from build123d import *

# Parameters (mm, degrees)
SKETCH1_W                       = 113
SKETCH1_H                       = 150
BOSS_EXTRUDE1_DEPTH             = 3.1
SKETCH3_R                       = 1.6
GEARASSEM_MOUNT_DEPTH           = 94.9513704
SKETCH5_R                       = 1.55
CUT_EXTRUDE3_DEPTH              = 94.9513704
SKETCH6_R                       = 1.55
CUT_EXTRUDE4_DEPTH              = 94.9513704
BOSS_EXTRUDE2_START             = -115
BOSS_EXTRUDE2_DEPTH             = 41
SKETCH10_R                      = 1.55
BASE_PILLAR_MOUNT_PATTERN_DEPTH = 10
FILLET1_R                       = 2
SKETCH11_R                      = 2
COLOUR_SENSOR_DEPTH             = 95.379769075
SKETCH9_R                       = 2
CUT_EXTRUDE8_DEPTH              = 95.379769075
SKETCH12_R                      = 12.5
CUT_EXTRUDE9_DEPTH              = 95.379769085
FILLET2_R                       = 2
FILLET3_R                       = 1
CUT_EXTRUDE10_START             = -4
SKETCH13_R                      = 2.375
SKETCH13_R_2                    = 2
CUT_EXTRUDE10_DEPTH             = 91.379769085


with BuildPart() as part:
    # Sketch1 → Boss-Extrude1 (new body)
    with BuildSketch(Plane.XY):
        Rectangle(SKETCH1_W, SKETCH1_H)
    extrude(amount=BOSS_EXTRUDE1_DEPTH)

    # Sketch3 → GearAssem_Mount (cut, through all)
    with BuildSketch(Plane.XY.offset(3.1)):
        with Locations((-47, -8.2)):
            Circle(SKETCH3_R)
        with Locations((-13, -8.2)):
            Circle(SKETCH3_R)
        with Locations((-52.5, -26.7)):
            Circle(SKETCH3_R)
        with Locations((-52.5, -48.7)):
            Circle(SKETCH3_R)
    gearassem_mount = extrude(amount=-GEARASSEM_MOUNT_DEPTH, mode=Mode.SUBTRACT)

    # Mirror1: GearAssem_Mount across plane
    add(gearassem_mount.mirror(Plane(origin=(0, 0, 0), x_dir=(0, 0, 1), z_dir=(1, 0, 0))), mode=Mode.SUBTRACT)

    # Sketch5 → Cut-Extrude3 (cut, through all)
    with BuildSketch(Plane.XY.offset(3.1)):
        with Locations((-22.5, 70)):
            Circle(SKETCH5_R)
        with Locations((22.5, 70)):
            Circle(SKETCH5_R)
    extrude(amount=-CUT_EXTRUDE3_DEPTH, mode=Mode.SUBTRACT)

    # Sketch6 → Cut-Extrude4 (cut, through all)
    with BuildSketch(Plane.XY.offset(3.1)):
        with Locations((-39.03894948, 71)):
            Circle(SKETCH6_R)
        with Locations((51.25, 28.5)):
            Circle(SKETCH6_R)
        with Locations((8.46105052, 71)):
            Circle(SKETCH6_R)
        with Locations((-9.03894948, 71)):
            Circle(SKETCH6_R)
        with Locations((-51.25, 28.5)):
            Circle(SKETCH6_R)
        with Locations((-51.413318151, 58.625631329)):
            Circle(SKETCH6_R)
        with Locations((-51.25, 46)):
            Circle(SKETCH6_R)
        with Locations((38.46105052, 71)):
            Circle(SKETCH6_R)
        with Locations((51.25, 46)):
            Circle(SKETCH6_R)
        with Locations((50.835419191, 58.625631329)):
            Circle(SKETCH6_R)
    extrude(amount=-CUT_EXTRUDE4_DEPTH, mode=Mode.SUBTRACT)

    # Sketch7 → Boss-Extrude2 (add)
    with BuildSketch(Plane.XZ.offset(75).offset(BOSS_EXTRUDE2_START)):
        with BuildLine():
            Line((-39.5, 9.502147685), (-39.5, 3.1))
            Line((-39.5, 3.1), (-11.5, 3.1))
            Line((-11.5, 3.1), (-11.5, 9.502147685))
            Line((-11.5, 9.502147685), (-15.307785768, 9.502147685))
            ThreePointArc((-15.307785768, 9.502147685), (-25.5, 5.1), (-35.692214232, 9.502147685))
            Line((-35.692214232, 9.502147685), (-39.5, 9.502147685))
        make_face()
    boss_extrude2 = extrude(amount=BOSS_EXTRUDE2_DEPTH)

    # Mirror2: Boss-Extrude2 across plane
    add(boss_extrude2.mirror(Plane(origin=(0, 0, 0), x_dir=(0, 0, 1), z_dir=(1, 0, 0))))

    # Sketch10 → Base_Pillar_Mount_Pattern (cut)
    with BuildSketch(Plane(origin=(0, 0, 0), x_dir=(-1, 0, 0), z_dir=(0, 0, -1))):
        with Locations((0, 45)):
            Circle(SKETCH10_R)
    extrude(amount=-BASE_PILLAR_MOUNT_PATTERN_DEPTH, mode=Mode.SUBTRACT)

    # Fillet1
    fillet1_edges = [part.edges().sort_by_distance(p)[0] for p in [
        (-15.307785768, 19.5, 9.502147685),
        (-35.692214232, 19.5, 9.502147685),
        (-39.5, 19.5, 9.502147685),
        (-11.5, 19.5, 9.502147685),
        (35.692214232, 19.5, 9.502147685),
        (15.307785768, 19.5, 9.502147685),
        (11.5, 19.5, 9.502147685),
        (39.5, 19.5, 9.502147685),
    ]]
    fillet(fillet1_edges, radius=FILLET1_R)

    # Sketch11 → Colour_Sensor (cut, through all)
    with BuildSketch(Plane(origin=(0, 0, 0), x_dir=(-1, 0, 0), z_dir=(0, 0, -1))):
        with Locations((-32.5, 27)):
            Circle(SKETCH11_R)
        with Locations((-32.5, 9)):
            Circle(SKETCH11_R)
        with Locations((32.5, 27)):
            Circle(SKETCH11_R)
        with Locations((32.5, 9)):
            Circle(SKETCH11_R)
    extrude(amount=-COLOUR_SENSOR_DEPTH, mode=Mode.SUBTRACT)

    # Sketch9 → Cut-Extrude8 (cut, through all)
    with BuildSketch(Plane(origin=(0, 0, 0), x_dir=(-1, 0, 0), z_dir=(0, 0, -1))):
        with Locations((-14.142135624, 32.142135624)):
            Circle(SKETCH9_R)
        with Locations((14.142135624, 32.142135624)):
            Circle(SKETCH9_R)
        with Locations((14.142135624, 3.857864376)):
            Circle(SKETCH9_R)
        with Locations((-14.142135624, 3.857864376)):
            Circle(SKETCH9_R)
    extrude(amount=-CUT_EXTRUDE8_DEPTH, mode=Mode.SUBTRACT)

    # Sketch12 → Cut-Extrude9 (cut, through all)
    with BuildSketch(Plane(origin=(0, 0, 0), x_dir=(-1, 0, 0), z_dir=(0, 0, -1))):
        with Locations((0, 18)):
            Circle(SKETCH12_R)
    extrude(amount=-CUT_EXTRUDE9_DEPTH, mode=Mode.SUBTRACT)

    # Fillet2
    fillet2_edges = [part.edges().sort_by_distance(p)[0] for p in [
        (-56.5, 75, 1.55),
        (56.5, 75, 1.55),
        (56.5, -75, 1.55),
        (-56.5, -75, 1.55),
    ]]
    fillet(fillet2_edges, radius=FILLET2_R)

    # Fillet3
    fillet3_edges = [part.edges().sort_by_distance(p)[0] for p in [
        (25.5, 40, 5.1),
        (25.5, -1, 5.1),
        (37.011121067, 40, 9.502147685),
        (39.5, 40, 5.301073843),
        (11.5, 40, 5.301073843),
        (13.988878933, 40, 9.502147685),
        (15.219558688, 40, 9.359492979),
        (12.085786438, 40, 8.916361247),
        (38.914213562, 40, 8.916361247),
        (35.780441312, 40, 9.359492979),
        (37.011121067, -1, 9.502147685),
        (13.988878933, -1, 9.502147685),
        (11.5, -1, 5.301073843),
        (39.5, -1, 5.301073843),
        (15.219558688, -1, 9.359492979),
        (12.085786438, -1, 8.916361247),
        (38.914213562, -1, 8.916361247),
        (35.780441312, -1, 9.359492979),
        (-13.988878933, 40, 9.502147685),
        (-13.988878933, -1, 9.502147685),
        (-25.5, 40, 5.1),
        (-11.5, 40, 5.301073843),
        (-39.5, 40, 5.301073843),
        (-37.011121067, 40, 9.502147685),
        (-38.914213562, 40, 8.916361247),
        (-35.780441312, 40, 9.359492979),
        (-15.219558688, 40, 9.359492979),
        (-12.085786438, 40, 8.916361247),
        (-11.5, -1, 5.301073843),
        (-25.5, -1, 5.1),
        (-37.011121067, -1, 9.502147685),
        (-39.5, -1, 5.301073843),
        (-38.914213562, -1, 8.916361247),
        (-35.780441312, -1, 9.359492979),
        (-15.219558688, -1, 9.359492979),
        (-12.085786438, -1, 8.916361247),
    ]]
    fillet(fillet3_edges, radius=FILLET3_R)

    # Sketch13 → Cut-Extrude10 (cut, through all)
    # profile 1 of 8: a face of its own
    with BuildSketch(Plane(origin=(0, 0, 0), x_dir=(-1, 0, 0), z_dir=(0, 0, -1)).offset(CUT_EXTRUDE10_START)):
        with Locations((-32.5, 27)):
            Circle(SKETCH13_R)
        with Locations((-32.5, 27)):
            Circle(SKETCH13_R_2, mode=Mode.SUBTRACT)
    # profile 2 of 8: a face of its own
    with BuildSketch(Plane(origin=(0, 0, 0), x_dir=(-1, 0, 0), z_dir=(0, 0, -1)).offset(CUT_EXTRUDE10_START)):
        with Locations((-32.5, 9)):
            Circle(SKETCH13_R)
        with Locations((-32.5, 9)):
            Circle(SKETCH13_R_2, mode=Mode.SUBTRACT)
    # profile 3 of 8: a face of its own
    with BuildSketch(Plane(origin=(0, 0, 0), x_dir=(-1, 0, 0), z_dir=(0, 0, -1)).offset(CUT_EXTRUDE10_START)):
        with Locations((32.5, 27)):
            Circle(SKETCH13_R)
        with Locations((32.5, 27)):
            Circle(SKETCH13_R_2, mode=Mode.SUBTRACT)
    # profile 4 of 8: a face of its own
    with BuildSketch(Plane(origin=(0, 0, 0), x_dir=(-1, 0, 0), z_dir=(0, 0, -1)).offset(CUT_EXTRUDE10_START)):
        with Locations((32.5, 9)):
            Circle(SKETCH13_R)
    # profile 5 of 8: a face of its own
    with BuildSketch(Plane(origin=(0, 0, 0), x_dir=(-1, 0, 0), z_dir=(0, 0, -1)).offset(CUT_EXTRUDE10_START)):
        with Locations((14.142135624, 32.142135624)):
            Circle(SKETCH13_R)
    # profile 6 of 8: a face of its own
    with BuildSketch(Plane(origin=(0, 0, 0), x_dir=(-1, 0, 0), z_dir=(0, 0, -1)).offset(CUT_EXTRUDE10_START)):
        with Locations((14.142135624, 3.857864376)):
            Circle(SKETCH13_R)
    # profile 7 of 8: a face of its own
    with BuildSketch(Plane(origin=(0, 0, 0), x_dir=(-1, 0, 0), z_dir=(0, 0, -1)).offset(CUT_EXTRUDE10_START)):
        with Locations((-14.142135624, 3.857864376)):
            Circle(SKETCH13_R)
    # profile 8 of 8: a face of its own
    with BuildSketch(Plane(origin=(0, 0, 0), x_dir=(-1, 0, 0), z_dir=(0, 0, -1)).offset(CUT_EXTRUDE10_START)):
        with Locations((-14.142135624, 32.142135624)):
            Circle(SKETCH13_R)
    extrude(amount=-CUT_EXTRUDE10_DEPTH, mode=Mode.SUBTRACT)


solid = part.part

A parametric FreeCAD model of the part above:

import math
import FreeCAD as App
import Part
import Sketcher
from FreeCAD import Vector


def edges_at(feature, points):
    """Names of the edges that pass closest to the given points."""
    edges = feature.Shape.Edges
    near = lambda p: min(range(len(edges)), key=lambda i: edges[i].distToShape(Part.Vertex(*p))[0])
    return sorted({f"Edge{near(p) + 1}" for p in points})

doc = App.newDocument("Part")
body = doc.addObject("PartDesign::Body", "Body")

# Sketch on XY plane
sketch1 = doc.addObject("Sketcher::SketchObject", "Sketch")
body.addObject(sketch1)
sketch1.AttachmentSupport = (doc.XY_Plane, [""])
sketch1.MapMode = "FlatFace"
sketch1.addGeometry([
    Part.LineSegment(Vector(-56.5, 75, 0), Vector(-56.5, -75, 0)),
    Part.LineSegment(Vector(-56.5, -75, 0), Vector(56.5, -75, 0)),
    Part.LineSegment(Vector(56.5, -75, 0), Vector(56.5, 75, 0)),
    Part.LineSegment(Vector(56.5, 75, 0), Vector(-56.5, 75, 0)),
], False)
sketch1.addConstraint([
    Sketcher.Constraint("Coincident", 0, 2, 1, 1),
    Sketcher.Constraint("Coincident", 1, 2, 2, 1),
    Sketcher.Constraint("Coincident", 2, 2, 3, 1),
    Sketcher.Constraint("Coincident", 3, 2, 0, 1),
    Sketcher.Constraint("Vertical", 0),
    Sketcher.Constraint("Horizontal", 1),
    Sketcher.Constraint("Vertical", 2),
    Sketcher.Constraint("Horizontal", 3),
    Sketcher.Constraint("Symmetric", 0, 2, 2, 2, -1, 1),
    Sketcher.Constraint("DistanceX", 1, 1, 1, 2, 113.0),
    Sketcher.Constraint("DistanceY", 0, 2, 0, 1, 150.0),
])
pad1 = doc.addObject("PartDesign::Pad", "Pad")
body.addObject(pad1)
pad1.Profile = sketch1
pad1.Length = 3.1

# Sketch on XY plane
sketch2 = doc.addObject("Sketcher::SketchObject", "Sketch001")
body.addObject(sketch2)
sketch2.AttachmentSupport = (doc.XY_Plane, [""])
sketch2.MapMode = "FlatFace"
sketch2.AttachmentOffset = App.Placement(Vector(0, 0, 3.1), App.Rotation())
sketch2.addGeometry([
    Part.Circle(Vector(-47, -8.2, 0), Vector(0, 0, 1), 1.6),
    Part.Circle(Vector(-13, -8.2, 0), Vector(0, 0, 1), 1.6),
    Part.Circle(Vector(-52.5, -26.7, 0), Vector(0, 0, 1), 1.6),
    Part.Circle(Vector(-52.5, -48.7, 0), Vector(0, 0, 1), 1.6),
], False)
sketch2.addConstraint([
    Sketcher.Constraint("Equal", 0, 1),
    Sketcher.Constraint("Equal", 1, 2),
    Sketcher.Constraint("Equal", 2, 3),
    Sketcher.Constraint("Horizontal", 0, 3, 1, 3),
    Sketcher.Constraint("Vertical", 2, 3, 3, 3),
    Sketcher.Constraint("Diameter", 0, 3.2),
    Sketcher.Constraint("DistanceX", 0, 3, -1, 1, 47.0),
    Sketcher.Constraint("DistanceX", 1, 3, -1, 1, 13.0),
    Sketcher.Constraint("DistanceY", 3, 3, 2, 3, 22.0),
    Sketcher.Constraint("DistanceY", 0, 3, -1, 1, 8.2),
    Sketcher.Constraint("DistanceX", 2, 3, -1, 1, 52.5),
    Sketcher.Constraint("DistanceY", 2, 3, -1, 1, 26.7),
])
pocket1 = doc.addObject("PartDesign::Pocket", "Pocket")
body.addObject(pocket1)
pocket1.Profile = sketch2
pocket1.Type = "ThroughAll"
doc.recompute()

mirrored = doc.addObject("PartDesign::Mirrored", "Mirrored")
body.addObject(mirrored)
mirrored.Originals = [pocket1]
mirrored.MirrorPlane = (doc.YZ_Plane, [""])
body.Tip = mirrored

# Sketch on XY plane
sketch3 = doc.addObject("Sketcher::SketchObject", "Sketch002")
body.addObject(sketch3)
sketch3.AttachmentSupport = (doc.XY_Plane, [""])
sketch3.MapMode = "FlatFace"
sketch3.AttachmentOffset = App.Placement(Vector(0, 0, 3.1), App.Rotation())
sketch3.addGeometry([
    Part.Circle(Vector(-22.5, 70, 0), Vector(0, 0, 1), 1.55),
    Part.Circle(Vector(22.5, 70, 0), Vector(0, 0, 1), 1.55),
], False)
sketch3.addConstraint([
    Sketcher.Constraint("Equal", 0, 1),
    Sketcher.Constraint("Symmetric", 0, 3, 1, 3, -2),
    Sketcher.Constraint("Diameter", 0, 3.1),
    Sketcher.Constraint("DistanceY", -1, 1, 0, 3, 70.0),
    Sketcher.Constraint("DistanceX", 0, 3, 1, 3, 45.0),
])
pocket2 = doc.addObject("PartDesign::Pocket", "Pocket001")
body.addObject(pocket2)
pocket2.Profile = sketch3
pocket2.Type = "ThroughAll"

# Sketch on XY plane
sketch4 = doc.addObject("Sketcher::SketchObject", "Sketch003")
body.addObject(sketch4)
sketch4.AttachmentSupport = (doc.XY_Plane, [""])
sketch4.MapMode = "FlatFace"
sketch4.AttachmentOffset = App.Placement(Vector(0, 0, 3.1), App.Rotation())
sketch4.addGeometry([
    Part.Circle(Vector(-39.038949, 71, 0), Vector(0, 0, 1), 1.55),  # 0
    Part.Circle(Vector(51.25, 28.5, 0), Vector(0, 0, 1), 1.55),  # 1
    Part.Circle(Vector(8.461051, 71, 0), Vector(0, 0, 1), 1.55),  # 2
    Part.Circle(Vector(-9.038949, 71, 0), Vector(0, 0, 1), 1.55),  # 3
    Part.Circle(Vector(-51.25, 28.5, 0), Vector(0, 0, 1), 1.55),  # 4
    Part.Circle(Vector(-51.413318, 58.625631, 0), Vector(0, 0, 1), 1.55),  # 5
    Part.Circle(Vector(-51.25, 46, 0), Vector(0, 0, 1), 1.55),  # 6
    Part.Circle(Vector(38.461051, 71, 0), Vector(0, 0, 1), 1.55),  # 7
    Part.Circle(Vector(51.25, 46, 0), Vector(0, 0, 1), 1.55),  # 8
    Part.Circle(Vector(50.835419, 58.625631, 0), Vector(0, 0, 1), 1.55),  # 9
], False)
sketch4.addConstraint([
    Sketcher.Constraint("Equal", 0, 1),
    Sketcher.Constraint("Equal", 1, 2),
    Sketcher.Constraint("Equal", 2, 3),
    Sketcher.Constraint("Equal", 3, 4),
    Sketcher.Constraint("Equal", 4, 5),
    Sketcher.Constraint("Equal", 5, 6),
    Sketcher.Constraint("Equal", 6, 7),
    Sketcher.Constraint("Equal", 7, 8),
    Sketcher.Constraint("Equal", 8, 9),
    Sketcher.Constraint("Symmetric", 1, 3, 4, 3, -2),
    Sketcher.Constraint("Symmetric", 6, 3, 8, 3, -2),
    Sketcher.Constraint("Horizontal", 0, 3, 2, 3),
    Sketcher.Constraint("Horizontal", 2, 3, 3, 3),
    Sketcher.Constraint("Horizontal", 3, 3, 7, 3),
    Sketcher.Constraint("Horizontal", 5, 3, 9, 3),
    Sketcher.Constraint("Vertical", 4, 3, 6, 3),
    Sketcher.Constraint("Diameter", 0, 3.1),
    Sketcher.Constraint("DistanceY", -1, 1, 0, 3, 71.0),
    Sketcher.Constraint("DistanceY", -1, 1, 6, 3, 46.0),
    Sketcher.Constraint("DistanceX", 0, 3, 3, 3, 30.0),
    Sketcher.Constraint("DistanceX", 2, 3, 7, 3, 30.0),
    Sketcher.Constraint("DistanceY", -1, 1, 1, 3, 28.5),
    Sketcher.Constraint("DistanceX", 0, 3, 2, 3, 47.5),
    Sketcher.Constraint("DistanceX", 4, 3, 1, 3, 102.5),
    Sketcher.Constraint("DistanceX", 0, 3, -1, 1, 39.038949),
    Sketcher.Constraint("DistanceX", 5, 3, -1, 1, 51.413318),
    Sketcher.Constraint("DistanceY", -1, 1, 5, 3, 58.625631),
    Sketcher.Constraint("DistanceX", -1, 1, 9, 3, 50.835419),
])
pocket3 = doc.addObject("PartDesign::Pocket", "Pocket002")
body.addObject(pocket3)
pocket3.Profile = sketch4
pocket3.Type = "ThroughAll"

# Sketch on XZ plane
sketch5 = doc.addObject("Sketcher::SketchObject", "Sketch004")
body.addObject(sketch5)
sketch5.AttachmentSupport = (doc.XZ_Plane, [""])
sketch5.MapMode = "FlatFace"
sketch5.AttachmentOffset = App.Placement(Vector(0, 0, -40), App.Rotation())
sketch5.addGeometry([
    Part.LineSegment(Vector(-39.5, 9.502148, 0), Vector(-39.5, 3.1, 0)),  # 0
    Part.LineSegment(Vector(-39.5, 3.1, 0), Vector(-11.5, 3.1, 0)),  # 1
    Part.LineSegment(Vector(-11.5, 3.1, 0), Vector(-11.5, 9.502148, 0)),  # 2
    Part.LineSegment(Vector(-11.5, 9.502148, 0), Vector(-15.307786, 9.502148, 0)),  # 3
    Part.ArcOfCircle(Part.Circle(Vector(-25.5, 19.1, 0), Vector(0, 0, 1), 14), math.radians(-136.720267), math.radians(-43.279733)),  # 4
    Part.LineSegment(Vector(-35.692214, 9.502148, 0), Vector(-39.5, 9.502148, 0)),  # 5
], False)
sketch5.addConstraint([
    Sketcher.Constraint("Coincident", 0, 2, 1, 1),
    Sketcher.Constraint("Coincident", 1, 2, 2, 1),
    Sketcher.Constraint("Coincident", 2, 2, 3, 1),
    Sketcher.Constraint("Coincident", 3, 2, 4, 2),
    Sketcher.Constraint("Coincident", 4, 1, 5, 1),
    Sketcher.Constraint("Coincident", 5, 2, 0, 1),
    Sketcher.Constraint("Vertical", 0),
    Sketcher.Constraint("Horizontal", 1),
    Sketcher.Constraint("Vertical", 2),
    Sketcher.Constraint("Horizontal", 3),
    Sketcher.Constraint("Horizontal", 5),
    Sketcher.Constraint("Horizontal", 3, 2, 4, 1),
    Sketcher.Constraint("Equal", 3, 5),
    Sketcher.Constraint("Radius", 4, 14.0),
    Sketcher.Constraint("DistanceX", 1, 1, 1, 2, 28.0),
    Sketcher.Constraint("DistanceY", 0, 2, 4, 3, 16.0),
    Sketcher.Constraint("DistanceX", 4, 3, -1, 1, 25.5),
    Sketcher.Constraint("DistanceY", -1, 1, 4, 3, 19.1),
    Sketcher.Constraint("DistanceX", 3, 2, 3, 1, 3.807786),
])
pad2 = doc.addObject("PartDesign::Pad", "Pad001")
body.addObject(pad2)
pad2.Profile = sketch5
pad2.Length = 41
doc.recompute()

mirrored2 = doc.addObject("PartDesign::Mirrored", "Mirrored001")
body.addObject(mirrored2)
mirrored2.Originals = [pad2]
mirrored2.MirrorPlane = (doc.YZ_Plane, [""])
body.Tip = mirrored2

# Sketch on XY plane
sketch6 = doc.addObject("Sketcher::SketchObject", "Sketch005")
body.addObject(sketch6)
sketch6.AttachmentSupport = (doc.XY_Plane, [""])
sketch6.MapMode = "FlatFace"
sketch6.addGeometry(Part.Circle(Vector(0, 45, 0), Vector(0, 0, 1), 1.55), False)
sketch6.addConstraint([
    Sketcher.Constraint("PointOnObject", 0, 3, -2),
    Sketcher.Constraint("Diameter", 0, 3.1),
    Sketcher.Constraint("DistanceY", -1, 1, 0, 3, 45.0),
])
pocket4 = doc.addObject("PartDesign::Pocket", "Pocket003")
body.addObject(pocket4)
pocket4.Profile = sketch6
pocket4.Length = 10
pocket4.Reversed = True
doc.recompute()

fillet = doc.addObject("PartDesign::Fillet", "Fillet")
body.addObject(fillet)
fillet.Base = (pocket4, edges_at(pocket4, [
    (-15.308, 19.5, 9.502),
    (-35.692, 19.5, 9.502),
    (-39.5, 19.5, 9.502),
    (-11.5, 19.5, 9.502),
    (35.692, 19.5, 9.502),
    (15.308, 19.5, 9.502),
    (11.5, 19.5, 9.502),
    (39.5, 19.5, 9.502),
]))
fillet.Radius = 2

# Sketch on XY plane
sketch7 = doc.addObject("Sketcher::SketchObject", "Sketch006")
body.addObject(sketch7)
sketch7.AttachmentSupport = (doc.XY_Plane, [""])
sketch7.MapMode = "FlatFace"
sketch7.addGeometry([
    Part.Circle(Vector(32.5, 27, 0), Vector(0, 0, 1), 2),
    Part.Circle(Vector(32.5, 9, 0), Vector(0, 0, 1), 2),
    Part.Circle(Vector(-32.5, 27, 0), Vector(0, 0, 1), 2),
    Part.Circle(Vector(-32.5, 9, 0), Vector(0, 0, 1), 2),
], False)
sketch7.addConstraint([
    Sketcher.Constraint("Equal", 0, 1),
    Sketcher.Constraint("Equal", 1, 2),
    Sketcher.Constraint("Equal", 2, 3),
    Sketcher.Constraint("Symmetric", 0, 3, 2, 3, -2),
    Sketcher.Constraint("Symmetric", 1, 3, 3, 3, -2),
    Sketcher.Constraint("Vertical", 0, 3, 1, 3),
    Sketcher.Constraint("Diameter", 0, 4.0),
    Sketcher.Constraint("DistanceY", -1, 1, 0, 3, 27.0),
    Sketcher.Constraint("DistanceY", -1, 1, 1, 3, 9.0),
    Sketcher.Constraint("DistanceX", 2, 3, 0, 3, 65.0),
])
pocket5 = doc.addObject("PartDesign::Pocket", "Pocket004")
body.addObject(pocket5)
pocket5.Profile = sketch7
pocket5.Type = "ThroughAll"
pocket5.Reversed = True

# Sketch on XY plane
sketch8 = doc.addObject("Sketcher::SketchObject", "Sketch007")
body.addObject(sketch8)
sketch8.AttachmentSupport = (doc.XY_Plane, [""])
sketch8.MapMode = "FlatFace"
sketch8.addGeometry([
    Part.Circle(Vector(14.142136, 32.142136, 0), Vector(0, 0, 1), 2),
    Part.Circle(Vector(-14.142136, 32.142136, 0), Vector(0, 0, 1), 2),
    Part.Circle(Vector(-14.142136, 3.857864, 0), Vector(0, 0, 1), 2),
    Part.Circle(Vector(14.142136, 3.857864, 0), Vector(0, 0, 1), 2),
], False)
sketch8.addConstraint([
    Sketcher.Constraint("Equal", 0, 1),
    Sketcher.Constraint("Equal", 1, 2),
    Sketcher.Constraint("Equal", 2, 3),
    Sketcher.Constraint("Symmetric", 0, 3, 1, 3, -2),
    Sketcher.Constraint("Symmetric", 2, 3, 3, 3, -2),
    Sketcher.Constraint("Vertical", 1, 3, 2, 3),
    Sketcher.Constraint("Diameter", 0, 4.0),
    Sketcher.Constraint("DistanceX", 1, 3, 0, 3, 28.284271),
    Sketcher.Constraint("DistanceY", 2, 3, 1, 3, 28.284271),
    Sketcher.Constraint("DistanceY", -1, 1, 0, 3, 32.142136),
])
pocket6 = doc.addObject("PartDesign::Pocket", "Pocket005")
body.addObject(pocket6)
pocket6.Profile = sketch8
pocket6.Type = "ThroughAll"
pocket6.Reversed = True

# Sketch on XY plane
sketch9 = doc.addObject("Sketcher::SketchObject", "Sketch008")
body.addObject(sketch9)
sketch9.AttachmentSupport = (doc.XY_Plane, [""])
sketch9.MapMode = "FlatFace"
sketch9.addGeometry(Part.Circle(Vector(0, 18, 0), Vector(0, 0, 1), 12.5), False)
sketch9.addConstraint([
    Sketcher.Constraint("PointOnObject", 0, 3, -2),
    Sketcher.Constraint("Diameter", 0, 25.0),
    Sketcher.Constraint("DistanceY", -1, 1, 0, 3, 18.0),
])
pocket7 = doc.addObject("PartDesign::Pocket", "Pocket006")
body.addObject(pocket7)
pocket7.Profile = sketch9
pocket7.Type = "ThroughAll"
pocket7.Reversed = True
doc.recompute()

fillet2 = doc.addObject("PartDesign::Fillet", "Fillet001")
body.addObject(fillet2)
fillet2.Base = (pocket7, edges_at(pocket7, [
    (-56.5, 75, 1.55),
    (56.5, 75, 1.55),
    (56.5, -75, 1.55),
    (-56.5, -75, 1.55),
]))
fillet2.Radius = 2
doc.recompute()

fillet3 = doc.addObject("PartDesign::Fillet", "Fillet002")
body.addObject(fillet3)
fillet3.Base = (fillet2, edges_at(fillet2, [
    (25.5, 40, 5.1),
    (25.5, -1, 5.1),
    (37.011, 40, 9.502),
    (39.5, 40, 5.301),
    (11.5, 40, 5.301),
    (13.989, 40, 9.502),
    (15.22, 40, 9.359),
    (12.086, 40, 8.916),
    (38.914, 40, 8.916),
    (35.78, 40, 9.359),
    (37.011, -1, 9.502),
    (13.989, -1, 9.502),
    (11.5, -1, 5.301),
    (39.5, -1, 5.301),
    (15.22, -1, 9.359),
    (12.086, -1, 8.916),
    (38.914, -1, 8.916),
    (35.78, -1, 9.359),
    (-13.989, 40, 9.502),
    (-13.989, -1, 9.502),
    (-25.5, 40, 5.1),
    (-11.5, 40, 5.301),
    (-39.5, 40, 5.301),
    (-37.011, 40, 9.502),
    (-38.914, 40, 8.916),
    (-35.78, 40, 9.359),
    (-15.22, 40, 9.359),
    (-12.086, 40, 8.916),
    (-11.5, -1, 5.301),
    (-25.5, -1, 5.1),
    (-37.011, -1, 9.502),
    (-39.5, -1, 5.301),
    (-38.914, -1, 8.916),
    (-35.78, -1, 9.359),
    (-15.22, -1, 9.359),
    (-12.086, -1, 8.916),
]))
fillet3.Radius = 1

# Sketch on XY plane
sketch10 = doc.addObject("Sketcher::SketchObject", "Sketch009")
body.addObject(sketch10)
sketch10.AttachmentSupport = (doc.XY_Plane, [""])
sketch10.MapMode = "FlatFace"
sketch10.AttachmentOffset = App.Placement(Vector(0, 0, 4), App.Rotation())
sketch10.addGeometry([
    Part.Circle(Vector(32.5, 27, 0), Vector(0, 0, 1), 2.375),  # 0
    Part.Circle(Vector(32.5, 27, 0), Vector(0, 0, 1), 2),  # 1
    Part.Circle(Vector(32.5, 9, 0), Vector(0, 0, 1), 2.375),  # 2
    Part.Circle(Vector(32.5, 9, 0), Vector(0, 0, 1), 2),  # 3
    Part.Circle(Vector(-32.5, 27, 0), Vector(0, 0, 1), 2.375),  # 4
    Part.Circle(Vector(-32.5, 27, 0), Vector(0, 0, 1), 2),  # 5
    Part.Circle(Vector(-32.5, 9, 0), Vector(0, 0, 1), 2.375),  # 6
    Part.Circle(Vector(-14.142136, 32.142136, 0), Vector(0, 0, 1), 2.375),  # 7
    Part.Circle(Vector(-14.142136, 3.857864, 0), Vector(0, 0, 1), 2.375),  # 8
    Part.Circle(Vector(14.142136, 3.857864, 0), Vector(0, 0, 1), 2.375),  # 9
    Part.Circle(Vector(14.142136, 32.142136, 0), Vector(0, 0, 1), 2.375),  # 10
], False)
sketch10.addConstraint([
    Sketcher.Constraint("Coincident", 1, 3, 0, 3),
    Sketcher.Constraint("Coincident", 3, 3, 2, 3),
    Sketcher.Constraint("Coincident", 5, 3, 4, 3),
    Sketcher.Constraint("Equal", 0, 2),
    Sketcher.Constraint("Equal", 1, 3),
    Sketcher.Constraint("Equal", 2, 4),
    Sketcher.Constraint("Equal", 3, 5),
    Sketcher.Constraint("Equal", 4, 6),
    Sketcher.Constraint("Equal", 6, 7),
    Sketcher.Constraint("Equal", 7, 8),
    Sketcher.Constraint("Equal", 8, 9),
    Sketcher.Constraint("Equal", 9, 10),
    Sketcher.Constraint("Symmetric", 0, 3, 4, 3, -2),
    Sketcher.Constraint("Symmetric", 2, 3, 6, 3, -2),
    Sketcher.Constraint("Symmetric", 8, 3, 9, 3, -2),
    Sketcher.Constraint("Symmetric", 7, 3, 10, 3, -2),
    Sketcher.Constraint("Vertical", 1, 3, 2, 3),
    Sketcher.Constraint("Vertical", 7, 3, 8, 3),
    Sketcher.Constraint("Diameter", 1, 4.0),
    Sketcher.Constraint("Diameter", 0, 4.75),
    Sketcher.Constraint("DistanceY", -1, 1, 0, 3, 27.0),
    Sketcher.Constraint("DistanceY", -1, 1, 2, 3, 9.0),
    Sketcher.Constraint("DistanceX", 4, 3, 0, 3, 65.0),
    Sketcher.Constraint("DistanceY", 8, 3, 7, 3, 28.284271),
    Sketcher.Constraint("DistanceX", 8, 3, 9, 3, 28.284271),
    Sketcher.Constraint("DistanceY", -1, 1, 7, 3, 32.142136),
])
pocket8 = doc.addObject("PartDesign::Pocket", "Pocket007")
body.addObject(pocket8)
pocket8.Profile = sketch10
pocket8.Length = 91.379769
pocket8.Reversed = True

doc.recompute()
